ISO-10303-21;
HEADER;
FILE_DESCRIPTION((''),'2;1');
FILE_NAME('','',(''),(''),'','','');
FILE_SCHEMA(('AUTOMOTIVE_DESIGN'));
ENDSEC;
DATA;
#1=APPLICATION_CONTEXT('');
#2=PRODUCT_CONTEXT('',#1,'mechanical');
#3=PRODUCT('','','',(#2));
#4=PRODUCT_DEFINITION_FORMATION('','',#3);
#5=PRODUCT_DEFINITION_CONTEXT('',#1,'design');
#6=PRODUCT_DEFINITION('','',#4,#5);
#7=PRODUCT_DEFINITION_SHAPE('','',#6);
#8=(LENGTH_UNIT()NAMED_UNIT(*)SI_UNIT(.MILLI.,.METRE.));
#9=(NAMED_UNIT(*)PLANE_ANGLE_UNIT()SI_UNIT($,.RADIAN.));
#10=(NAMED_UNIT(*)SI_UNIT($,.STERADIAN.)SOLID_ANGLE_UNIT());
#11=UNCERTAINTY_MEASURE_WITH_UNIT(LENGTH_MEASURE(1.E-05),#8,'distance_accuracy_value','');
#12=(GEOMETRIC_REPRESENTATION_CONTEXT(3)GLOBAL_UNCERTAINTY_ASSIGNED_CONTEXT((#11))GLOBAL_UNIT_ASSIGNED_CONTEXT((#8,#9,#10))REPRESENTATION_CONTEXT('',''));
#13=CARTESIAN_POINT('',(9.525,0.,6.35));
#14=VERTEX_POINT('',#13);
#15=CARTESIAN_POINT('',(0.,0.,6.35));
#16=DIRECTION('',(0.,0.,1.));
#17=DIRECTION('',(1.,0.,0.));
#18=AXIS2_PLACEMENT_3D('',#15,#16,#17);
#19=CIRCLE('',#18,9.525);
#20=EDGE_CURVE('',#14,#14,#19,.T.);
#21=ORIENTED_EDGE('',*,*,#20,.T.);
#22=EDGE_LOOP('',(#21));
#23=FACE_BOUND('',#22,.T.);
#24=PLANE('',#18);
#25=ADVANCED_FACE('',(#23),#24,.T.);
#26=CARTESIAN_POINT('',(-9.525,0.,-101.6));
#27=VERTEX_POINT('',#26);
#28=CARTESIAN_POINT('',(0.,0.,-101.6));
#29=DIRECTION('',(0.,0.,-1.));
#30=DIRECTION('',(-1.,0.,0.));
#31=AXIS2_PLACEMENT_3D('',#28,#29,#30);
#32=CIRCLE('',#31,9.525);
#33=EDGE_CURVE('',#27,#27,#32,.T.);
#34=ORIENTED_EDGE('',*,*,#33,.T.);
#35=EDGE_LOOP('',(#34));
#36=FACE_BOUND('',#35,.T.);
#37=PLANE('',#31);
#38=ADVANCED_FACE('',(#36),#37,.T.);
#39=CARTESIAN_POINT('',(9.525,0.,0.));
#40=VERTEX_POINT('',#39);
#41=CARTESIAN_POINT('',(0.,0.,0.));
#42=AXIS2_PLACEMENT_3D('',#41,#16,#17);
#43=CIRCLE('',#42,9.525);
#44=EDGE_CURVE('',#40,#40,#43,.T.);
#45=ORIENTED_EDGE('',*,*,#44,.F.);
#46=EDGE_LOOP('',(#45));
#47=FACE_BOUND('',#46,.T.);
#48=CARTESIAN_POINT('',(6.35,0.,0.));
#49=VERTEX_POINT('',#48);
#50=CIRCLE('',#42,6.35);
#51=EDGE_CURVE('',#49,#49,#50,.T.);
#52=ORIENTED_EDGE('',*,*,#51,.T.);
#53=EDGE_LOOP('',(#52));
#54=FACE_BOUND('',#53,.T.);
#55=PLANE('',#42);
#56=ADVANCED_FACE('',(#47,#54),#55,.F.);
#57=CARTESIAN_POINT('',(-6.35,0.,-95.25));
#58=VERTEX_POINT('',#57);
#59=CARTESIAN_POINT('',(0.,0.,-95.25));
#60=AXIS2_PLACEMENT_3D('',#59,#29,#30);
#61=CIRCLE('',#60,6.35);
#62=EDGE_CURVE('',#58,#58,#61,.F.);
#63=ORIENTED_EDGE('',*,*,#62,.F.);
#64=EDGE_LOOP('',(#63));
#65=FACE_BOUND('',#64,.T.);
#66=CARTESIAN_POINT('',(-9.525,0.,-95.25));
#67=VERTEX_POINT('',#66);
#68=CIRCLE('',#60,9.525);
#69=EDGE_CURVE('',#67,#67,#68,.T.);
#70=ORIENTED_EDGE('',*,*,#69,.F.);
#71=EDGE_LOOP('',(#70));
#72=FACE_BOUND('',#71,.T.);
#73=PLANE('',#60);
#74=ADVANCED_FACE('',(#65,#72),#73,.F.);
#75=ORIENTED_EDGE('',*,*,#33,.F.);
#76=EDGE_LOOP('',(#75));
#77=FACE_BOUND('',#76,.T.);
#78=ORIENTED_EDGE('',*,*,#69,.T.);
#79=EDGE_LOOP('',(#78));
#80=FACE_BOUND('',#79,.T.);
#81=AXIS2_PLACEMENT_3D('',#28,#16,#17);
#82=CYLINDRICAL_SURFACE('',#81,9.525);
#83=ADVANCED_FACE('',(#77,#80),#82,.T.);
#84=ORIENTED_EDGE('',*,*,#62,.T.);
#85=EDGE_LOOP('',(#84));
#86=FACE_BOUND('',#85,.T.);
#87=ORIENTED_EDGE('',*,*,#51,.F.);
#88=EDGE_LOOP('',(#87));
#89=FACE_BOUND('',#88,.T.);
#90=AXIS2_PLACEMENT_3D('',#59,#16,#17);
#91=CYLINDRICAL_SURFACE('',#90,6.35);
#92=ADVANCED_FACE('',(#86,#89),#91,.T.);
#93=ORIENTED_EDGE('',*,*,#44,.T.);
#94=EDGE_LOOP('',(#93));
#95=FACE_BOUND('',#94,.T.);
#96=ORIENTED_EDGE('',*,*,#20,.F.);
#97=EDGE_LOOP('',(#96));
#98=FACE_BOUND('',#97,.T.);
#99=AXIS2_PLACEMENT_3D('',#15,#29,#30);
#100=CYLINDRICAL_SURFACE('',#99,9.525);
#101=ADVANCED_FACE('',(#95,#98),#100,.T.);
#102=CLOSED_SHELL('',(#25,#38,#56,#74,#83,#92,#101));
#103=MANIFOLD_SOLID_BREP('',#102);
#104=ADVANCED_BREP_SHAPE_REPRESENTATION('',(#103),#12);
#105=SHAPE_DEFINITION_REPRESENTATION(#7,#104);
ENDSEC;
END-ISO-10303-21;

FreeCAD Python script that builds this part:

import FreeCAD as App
import Part
import Sketcher

V = App.Vector
Q = App.Units.Quantity

doc = App.newDocument("Part")
body = doc.addObject("PartDesign::Body", "Body")

# Sketch on XY plane
sketch1 = body.newObject("Sketcher::SketchObject", "Sketch")
sketch1.AttachmentSupport = (doc.getObject("XY_Plane"), [""])
sketch1.MapMode = "FlatFace"
sketch1.addGeometry(Part.Circle(V(0, 0, 0), V(0, 0, 1), 6.35), False)
sketch1.addConstraint([
    Sketcher.Constraint("Coincident", 0, 3, -1, 1),
    Sketcher.Constraint("Diameter", 0, Q("0.5 in")),
])
pad1 = body.newObject("PartDesign::Pad", "Pad")
pad1.Profile = sketch1
pad1.Length = Q("3.75 in")
pad1.Reversed = True

# Sketch on XY plane
sketch2 = body.newObject("Sketcher::SketchObject", "Sketch001")
sketch2.AttachmentSupport = (doc.getObject("XY_Plane"), [""])
sketch2.MapMode = "FlatFace"
sketch2.addGeometry(Part.Circle(V(0, 0, 0), V(0, 0, 1), 9.525), False)
sketch2.addConstraint([
    Sketcher.Constraint("Coincident", 0, 3, -1, 1),
    Sketcher.Constraint("Diameter", 0, Q("0.75 in")),
])
pad2 = body.newObject("PartDesign::Pad", "Pad001")
pad2.Profile = sketch2
pad2.Length = Q("0.25 in")

# Sketch on XY plane
sketch3 = body.newObject("Sketcher::SketchObject", "Sketch002")
sketch3.AttachmentSupport = (doc.getObject("XY_Plane"), [""])
sketch3.MapMode = "FlatFace"
sketch3.AttachmentOffset = App.Placement(V(0, 0, -3.75 * 25.4), App.Rotation())
sketch3.addGeometry(Part.Circle(V(0, 0, 0), V(0, 0, 1), 9.525), False)
sketch3.addConstraint([
    Sketcher.Constraint("Coincident", 0, 3, -1, 1),
    Sketcher.Constraint("Diameter", 0, Q("0.75 in")),
])
pad3 = body.newObject("PartDesign::Pad", "Pad002")
pad3.Profile = sketch3
pad3.Length = Q("0.25 in")
pad3.Reversed = True

doc.recompute()
